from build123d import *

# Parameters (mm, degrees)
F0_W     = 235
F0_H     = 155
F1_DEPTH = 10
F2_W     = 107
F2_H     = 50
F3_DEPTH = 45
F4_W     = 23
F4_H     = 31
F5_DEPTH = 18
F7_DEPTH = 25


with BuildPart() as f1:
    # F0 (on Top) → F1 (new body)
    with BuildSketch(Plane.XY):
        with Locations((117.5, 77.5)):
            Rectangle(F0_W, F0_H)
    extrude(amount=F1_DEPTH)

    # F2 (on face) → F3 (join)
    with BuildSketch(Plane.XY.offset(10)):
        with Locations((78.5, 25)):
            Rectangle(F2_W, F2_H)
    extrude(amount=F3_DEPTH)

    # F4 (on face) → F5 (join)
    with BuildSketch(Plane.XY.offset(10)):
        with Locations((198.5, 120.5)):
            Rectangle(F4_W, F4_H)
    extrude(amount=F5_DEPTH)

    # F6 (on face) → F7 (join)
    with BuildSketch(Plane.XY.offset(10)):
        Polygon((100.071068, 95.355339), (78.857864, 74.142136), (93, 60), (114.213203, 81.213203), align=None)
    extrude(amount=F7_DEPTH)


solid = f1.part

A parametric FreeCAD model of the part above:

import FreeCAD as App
import Part
import Sketcher
Q = App.Units.Quantity

doc = App.newDocument("Part")
body = doc.addObject("PartDesign::Body", "Body")

sketch1 = body.newObject("Sketcher::SketchObject", "Sketch")
sketch1.AttachmentSupport = (doc.getObject("XY_Plane"), [""])
sketch1.MapMode = "FlatFace"
sketch1.addGeometry([
    Part.LineSegment(App.Vector(0, 155, 0), App.Vector(0, 0, 0)),
    Part.LineSegment(App.Vector(0, 0, 0), App.Vector(235, 0, 0)),
    Part.LineSegment(App.Vector(235, 0, 0), App.Vector(235, 155, 0)),
    Part.LineSegment(App.Vector(235, 155, 0), App.Vector(0, 155, 0)),
], False)
sketch1.addConstraint([
    Sketcher.Constraint("Coincident", 0, 2, 1, 1),
    Sketcher.Constraint("Coincident", 1, 2, 2, 1),
    Sketcher.Constraint("Coincident", 2, 2, 3, 1),
    Sketcher.Constraint("Coincident", 3, 2, 0, 1),
    Sketcher.Constraint("Vertical", 0),
    Sketcher.Constraint("Horizontal", 1),
    Sketcher.Constraint("Vertical", 2),
    Sketcher.Constraint("Horizontal", 3),
    Sketcher.Constraint("Coincident", 0, 2, -1, 1),
    Sketcher.Constraint("DistanceX", 1, 1, 1, 2, Q("235 mm")),
    Sketcher.Constraint("DistanceY", 0, 2, 0, 1, Q("155 mm")),
])
pad1 = body.newObject("PartDesign::Pad", "Pad")
pad1.Profile = sketch1
pad1.Length = 10

sketch2 = body.newObject("Sketcher::SketchObject", "Sketch001")
sketch2.AttachmentSupport = (doc.getObject("XY_Plane"), [""])
sketch2.MapMode = "FlatFace"
sketch2.AttachmentOffset = App.Placement(App.Vector(0, 0, 10), App.Rotation())
sketch2.addGeometry([
    Part.LineSegment(App.Vector(25, 50, 0), App.Vector(25, 0, 0)),
    Part.LineSegment(App.Vector(25, 0, 0), App.Vector(132, 0, 0)),
    Part.LineSegment(App.Vector(132, 0, 0), App.Vector(132, 50, 0)),
    Part.LineSegment(App.Vector(132, 50, 0), App.Vector(25, 50, 0)),
], False)
sketch2.addConstraint([
    Sketcher.Constraint("Coincident", 0, 2, 1, 1),
    Sketcher.Constraint("Coincident", 1, 2, 2, 1),
    Sketcher.Constraint("Coincident", 2, 2, 3, 1),
    Sketcher.Constraint("Coincident", 3, 2, 0, 1),
    Sketcher.Constraint("Vertical", 0),
    Sketcher.Constraint("Horizontal", 1),
    Sketcher.Constraint("Vertical", 2),
    Sketcher.Constraint("Horizontal", 3),
    Sketcher.Constraint("PointOnObject", 0, 2, -1),
    Sketcher.Constraint("DistanceX", 1, 1, 1, 2, Q("107 mm")),
    Sketcher.Constraint("DistanceY", 0, 2, 0, 1, Q("50 mm")),
    Sketcher.Constraint("DistanceX", -1, 1, 0, 2, Q("25 mm")),
])
pad2 = body.newObject("PartDesign::Pad", "Pad001")
pad2.Profile = sketch2
pad2.Length = 45

sketch3 = body.newObject("Sketcher::SketchObject", "Sketch002")
sketch3.AttachmentSupport = (doc.getObject("XY_Plane"), [""])
sketch3.MapMode = "FlatFace"
sketch3.AttachmentOffset = App.Placement(App.Vector(0, 0, 10), App.Rotation())
sketch3.addGeometry([
    Part.LineSegment(App.Vector(187, 136, 0), App.Vector(187, 105, 0)),
    Part.LineSegment(App.Vector(187, 105, 0), App.Vector(210, 105, 0)),
    Part.LineSegment(App.Vector(210, 105, 0), App.Vector(210, 136, 0)),
    Part.LineSegment(App.Vector(210, 136, 0), App.Vector(187, 136, 0)),
], False)
sketch3.addConstraint([
    Sketcher.Constraint("Coincident", 0, 2, 1, 1),
    Sketcher.Constraint("Coincident", 1, 2, 2, 1),
    Sketcher.Constraint("Coincident", 2, 2, 3, 1),
    Sketcher.Constraint("Coincident", 3, 2, 0, 1),
    Sketcher.Constraint("Vertical", 0),
    Sketcher.Constraint("Horizontal", 1),
    Sketcher.Constraint("Vertical", 2),
    Sketcher.Constraint("Horizontal", 3),
    Sketcher.Constraint("DistanceX", 1, 1, 1, 2, Q("23 mm")),
    Sketcher.Constraint("DistanceY", 0, 2, 0, 1, Q("31 mm")),
    Sketcher.Constraint("DistanceX", -1, 1, 0, 2, Q("187 mm")),
    Sketcher.Constraint("DistanceY", -1, 1, 0, 2, Q("105 mm")),
])
pad3 = body.newObject("PartDesign::Pad", "Pad002")
pad3.Profile = sketch3
pad3.Length = 18

sketch4 = body.newObject("Sketcher::SketchObject", "Sketch003")
sketch4.AttachmentSupport = (doc.getObject("XY_Plane"), [""])
sketch4.MapMode = "FlatFace"
sketch4.AttachmentOffset = App.Placement(App.Vector(0, 0, 10), App.Rotation())
sketch4.addGeometry([
    Part.LineSegment(App.Vector(100, 95, 0), App.Vector(79, 74, 0)),
    Part.LineSegment(App.Vector(79, 74, 0), App.Vector(93, 60, 0)),
    Part.LineSegment(App.Vector(93, 60, 0), App.Vector(114, 81, 0)),
    Part.LineSegment(App.Vector(114, 81, 0), App.Vector(100, 95, 0)),
], False)
sketch4.addConstraint([
    Sketcher.Constraint("Coincident", 0, 2, 1, 1),
    Sketcher.Constraint("Coincident", 1, 2, 2, 1),
    Sketcher.Constraint("Coincident", 2, 2, 3, 1),
    Sketcher.Constraint("Coincident", 3, 2, 0, 1),
    Sketcher.Constraint("Perpendicular", 0, 1),
    Sketcher.Constraint("Perpendicular", 1, 2),
    Sketcher.Constraint("Perpendicular", 2, 3),
    Sketcher.Constraint("Angle", 0, Q("-135.000001 deg")),
    Sketcher.Constraint("Distance", 0, Q("30 mm")),
    Sketcher.Constraint("Distance", 1, Q("20.000001 mm")),
    Sketcher.Constraint("DistanceX", -1, 1, 1, 2, Q("93 mm")),
    Sketcher.Constraint("DistanceY", -1, 1, 1, 2, Q("60 mm")),
])
pad4 = body.newObject("PartDesign::Pad", "Pad003")
pad4.Profile = sketch4
pad4.Length = 25

doc.recompute()
